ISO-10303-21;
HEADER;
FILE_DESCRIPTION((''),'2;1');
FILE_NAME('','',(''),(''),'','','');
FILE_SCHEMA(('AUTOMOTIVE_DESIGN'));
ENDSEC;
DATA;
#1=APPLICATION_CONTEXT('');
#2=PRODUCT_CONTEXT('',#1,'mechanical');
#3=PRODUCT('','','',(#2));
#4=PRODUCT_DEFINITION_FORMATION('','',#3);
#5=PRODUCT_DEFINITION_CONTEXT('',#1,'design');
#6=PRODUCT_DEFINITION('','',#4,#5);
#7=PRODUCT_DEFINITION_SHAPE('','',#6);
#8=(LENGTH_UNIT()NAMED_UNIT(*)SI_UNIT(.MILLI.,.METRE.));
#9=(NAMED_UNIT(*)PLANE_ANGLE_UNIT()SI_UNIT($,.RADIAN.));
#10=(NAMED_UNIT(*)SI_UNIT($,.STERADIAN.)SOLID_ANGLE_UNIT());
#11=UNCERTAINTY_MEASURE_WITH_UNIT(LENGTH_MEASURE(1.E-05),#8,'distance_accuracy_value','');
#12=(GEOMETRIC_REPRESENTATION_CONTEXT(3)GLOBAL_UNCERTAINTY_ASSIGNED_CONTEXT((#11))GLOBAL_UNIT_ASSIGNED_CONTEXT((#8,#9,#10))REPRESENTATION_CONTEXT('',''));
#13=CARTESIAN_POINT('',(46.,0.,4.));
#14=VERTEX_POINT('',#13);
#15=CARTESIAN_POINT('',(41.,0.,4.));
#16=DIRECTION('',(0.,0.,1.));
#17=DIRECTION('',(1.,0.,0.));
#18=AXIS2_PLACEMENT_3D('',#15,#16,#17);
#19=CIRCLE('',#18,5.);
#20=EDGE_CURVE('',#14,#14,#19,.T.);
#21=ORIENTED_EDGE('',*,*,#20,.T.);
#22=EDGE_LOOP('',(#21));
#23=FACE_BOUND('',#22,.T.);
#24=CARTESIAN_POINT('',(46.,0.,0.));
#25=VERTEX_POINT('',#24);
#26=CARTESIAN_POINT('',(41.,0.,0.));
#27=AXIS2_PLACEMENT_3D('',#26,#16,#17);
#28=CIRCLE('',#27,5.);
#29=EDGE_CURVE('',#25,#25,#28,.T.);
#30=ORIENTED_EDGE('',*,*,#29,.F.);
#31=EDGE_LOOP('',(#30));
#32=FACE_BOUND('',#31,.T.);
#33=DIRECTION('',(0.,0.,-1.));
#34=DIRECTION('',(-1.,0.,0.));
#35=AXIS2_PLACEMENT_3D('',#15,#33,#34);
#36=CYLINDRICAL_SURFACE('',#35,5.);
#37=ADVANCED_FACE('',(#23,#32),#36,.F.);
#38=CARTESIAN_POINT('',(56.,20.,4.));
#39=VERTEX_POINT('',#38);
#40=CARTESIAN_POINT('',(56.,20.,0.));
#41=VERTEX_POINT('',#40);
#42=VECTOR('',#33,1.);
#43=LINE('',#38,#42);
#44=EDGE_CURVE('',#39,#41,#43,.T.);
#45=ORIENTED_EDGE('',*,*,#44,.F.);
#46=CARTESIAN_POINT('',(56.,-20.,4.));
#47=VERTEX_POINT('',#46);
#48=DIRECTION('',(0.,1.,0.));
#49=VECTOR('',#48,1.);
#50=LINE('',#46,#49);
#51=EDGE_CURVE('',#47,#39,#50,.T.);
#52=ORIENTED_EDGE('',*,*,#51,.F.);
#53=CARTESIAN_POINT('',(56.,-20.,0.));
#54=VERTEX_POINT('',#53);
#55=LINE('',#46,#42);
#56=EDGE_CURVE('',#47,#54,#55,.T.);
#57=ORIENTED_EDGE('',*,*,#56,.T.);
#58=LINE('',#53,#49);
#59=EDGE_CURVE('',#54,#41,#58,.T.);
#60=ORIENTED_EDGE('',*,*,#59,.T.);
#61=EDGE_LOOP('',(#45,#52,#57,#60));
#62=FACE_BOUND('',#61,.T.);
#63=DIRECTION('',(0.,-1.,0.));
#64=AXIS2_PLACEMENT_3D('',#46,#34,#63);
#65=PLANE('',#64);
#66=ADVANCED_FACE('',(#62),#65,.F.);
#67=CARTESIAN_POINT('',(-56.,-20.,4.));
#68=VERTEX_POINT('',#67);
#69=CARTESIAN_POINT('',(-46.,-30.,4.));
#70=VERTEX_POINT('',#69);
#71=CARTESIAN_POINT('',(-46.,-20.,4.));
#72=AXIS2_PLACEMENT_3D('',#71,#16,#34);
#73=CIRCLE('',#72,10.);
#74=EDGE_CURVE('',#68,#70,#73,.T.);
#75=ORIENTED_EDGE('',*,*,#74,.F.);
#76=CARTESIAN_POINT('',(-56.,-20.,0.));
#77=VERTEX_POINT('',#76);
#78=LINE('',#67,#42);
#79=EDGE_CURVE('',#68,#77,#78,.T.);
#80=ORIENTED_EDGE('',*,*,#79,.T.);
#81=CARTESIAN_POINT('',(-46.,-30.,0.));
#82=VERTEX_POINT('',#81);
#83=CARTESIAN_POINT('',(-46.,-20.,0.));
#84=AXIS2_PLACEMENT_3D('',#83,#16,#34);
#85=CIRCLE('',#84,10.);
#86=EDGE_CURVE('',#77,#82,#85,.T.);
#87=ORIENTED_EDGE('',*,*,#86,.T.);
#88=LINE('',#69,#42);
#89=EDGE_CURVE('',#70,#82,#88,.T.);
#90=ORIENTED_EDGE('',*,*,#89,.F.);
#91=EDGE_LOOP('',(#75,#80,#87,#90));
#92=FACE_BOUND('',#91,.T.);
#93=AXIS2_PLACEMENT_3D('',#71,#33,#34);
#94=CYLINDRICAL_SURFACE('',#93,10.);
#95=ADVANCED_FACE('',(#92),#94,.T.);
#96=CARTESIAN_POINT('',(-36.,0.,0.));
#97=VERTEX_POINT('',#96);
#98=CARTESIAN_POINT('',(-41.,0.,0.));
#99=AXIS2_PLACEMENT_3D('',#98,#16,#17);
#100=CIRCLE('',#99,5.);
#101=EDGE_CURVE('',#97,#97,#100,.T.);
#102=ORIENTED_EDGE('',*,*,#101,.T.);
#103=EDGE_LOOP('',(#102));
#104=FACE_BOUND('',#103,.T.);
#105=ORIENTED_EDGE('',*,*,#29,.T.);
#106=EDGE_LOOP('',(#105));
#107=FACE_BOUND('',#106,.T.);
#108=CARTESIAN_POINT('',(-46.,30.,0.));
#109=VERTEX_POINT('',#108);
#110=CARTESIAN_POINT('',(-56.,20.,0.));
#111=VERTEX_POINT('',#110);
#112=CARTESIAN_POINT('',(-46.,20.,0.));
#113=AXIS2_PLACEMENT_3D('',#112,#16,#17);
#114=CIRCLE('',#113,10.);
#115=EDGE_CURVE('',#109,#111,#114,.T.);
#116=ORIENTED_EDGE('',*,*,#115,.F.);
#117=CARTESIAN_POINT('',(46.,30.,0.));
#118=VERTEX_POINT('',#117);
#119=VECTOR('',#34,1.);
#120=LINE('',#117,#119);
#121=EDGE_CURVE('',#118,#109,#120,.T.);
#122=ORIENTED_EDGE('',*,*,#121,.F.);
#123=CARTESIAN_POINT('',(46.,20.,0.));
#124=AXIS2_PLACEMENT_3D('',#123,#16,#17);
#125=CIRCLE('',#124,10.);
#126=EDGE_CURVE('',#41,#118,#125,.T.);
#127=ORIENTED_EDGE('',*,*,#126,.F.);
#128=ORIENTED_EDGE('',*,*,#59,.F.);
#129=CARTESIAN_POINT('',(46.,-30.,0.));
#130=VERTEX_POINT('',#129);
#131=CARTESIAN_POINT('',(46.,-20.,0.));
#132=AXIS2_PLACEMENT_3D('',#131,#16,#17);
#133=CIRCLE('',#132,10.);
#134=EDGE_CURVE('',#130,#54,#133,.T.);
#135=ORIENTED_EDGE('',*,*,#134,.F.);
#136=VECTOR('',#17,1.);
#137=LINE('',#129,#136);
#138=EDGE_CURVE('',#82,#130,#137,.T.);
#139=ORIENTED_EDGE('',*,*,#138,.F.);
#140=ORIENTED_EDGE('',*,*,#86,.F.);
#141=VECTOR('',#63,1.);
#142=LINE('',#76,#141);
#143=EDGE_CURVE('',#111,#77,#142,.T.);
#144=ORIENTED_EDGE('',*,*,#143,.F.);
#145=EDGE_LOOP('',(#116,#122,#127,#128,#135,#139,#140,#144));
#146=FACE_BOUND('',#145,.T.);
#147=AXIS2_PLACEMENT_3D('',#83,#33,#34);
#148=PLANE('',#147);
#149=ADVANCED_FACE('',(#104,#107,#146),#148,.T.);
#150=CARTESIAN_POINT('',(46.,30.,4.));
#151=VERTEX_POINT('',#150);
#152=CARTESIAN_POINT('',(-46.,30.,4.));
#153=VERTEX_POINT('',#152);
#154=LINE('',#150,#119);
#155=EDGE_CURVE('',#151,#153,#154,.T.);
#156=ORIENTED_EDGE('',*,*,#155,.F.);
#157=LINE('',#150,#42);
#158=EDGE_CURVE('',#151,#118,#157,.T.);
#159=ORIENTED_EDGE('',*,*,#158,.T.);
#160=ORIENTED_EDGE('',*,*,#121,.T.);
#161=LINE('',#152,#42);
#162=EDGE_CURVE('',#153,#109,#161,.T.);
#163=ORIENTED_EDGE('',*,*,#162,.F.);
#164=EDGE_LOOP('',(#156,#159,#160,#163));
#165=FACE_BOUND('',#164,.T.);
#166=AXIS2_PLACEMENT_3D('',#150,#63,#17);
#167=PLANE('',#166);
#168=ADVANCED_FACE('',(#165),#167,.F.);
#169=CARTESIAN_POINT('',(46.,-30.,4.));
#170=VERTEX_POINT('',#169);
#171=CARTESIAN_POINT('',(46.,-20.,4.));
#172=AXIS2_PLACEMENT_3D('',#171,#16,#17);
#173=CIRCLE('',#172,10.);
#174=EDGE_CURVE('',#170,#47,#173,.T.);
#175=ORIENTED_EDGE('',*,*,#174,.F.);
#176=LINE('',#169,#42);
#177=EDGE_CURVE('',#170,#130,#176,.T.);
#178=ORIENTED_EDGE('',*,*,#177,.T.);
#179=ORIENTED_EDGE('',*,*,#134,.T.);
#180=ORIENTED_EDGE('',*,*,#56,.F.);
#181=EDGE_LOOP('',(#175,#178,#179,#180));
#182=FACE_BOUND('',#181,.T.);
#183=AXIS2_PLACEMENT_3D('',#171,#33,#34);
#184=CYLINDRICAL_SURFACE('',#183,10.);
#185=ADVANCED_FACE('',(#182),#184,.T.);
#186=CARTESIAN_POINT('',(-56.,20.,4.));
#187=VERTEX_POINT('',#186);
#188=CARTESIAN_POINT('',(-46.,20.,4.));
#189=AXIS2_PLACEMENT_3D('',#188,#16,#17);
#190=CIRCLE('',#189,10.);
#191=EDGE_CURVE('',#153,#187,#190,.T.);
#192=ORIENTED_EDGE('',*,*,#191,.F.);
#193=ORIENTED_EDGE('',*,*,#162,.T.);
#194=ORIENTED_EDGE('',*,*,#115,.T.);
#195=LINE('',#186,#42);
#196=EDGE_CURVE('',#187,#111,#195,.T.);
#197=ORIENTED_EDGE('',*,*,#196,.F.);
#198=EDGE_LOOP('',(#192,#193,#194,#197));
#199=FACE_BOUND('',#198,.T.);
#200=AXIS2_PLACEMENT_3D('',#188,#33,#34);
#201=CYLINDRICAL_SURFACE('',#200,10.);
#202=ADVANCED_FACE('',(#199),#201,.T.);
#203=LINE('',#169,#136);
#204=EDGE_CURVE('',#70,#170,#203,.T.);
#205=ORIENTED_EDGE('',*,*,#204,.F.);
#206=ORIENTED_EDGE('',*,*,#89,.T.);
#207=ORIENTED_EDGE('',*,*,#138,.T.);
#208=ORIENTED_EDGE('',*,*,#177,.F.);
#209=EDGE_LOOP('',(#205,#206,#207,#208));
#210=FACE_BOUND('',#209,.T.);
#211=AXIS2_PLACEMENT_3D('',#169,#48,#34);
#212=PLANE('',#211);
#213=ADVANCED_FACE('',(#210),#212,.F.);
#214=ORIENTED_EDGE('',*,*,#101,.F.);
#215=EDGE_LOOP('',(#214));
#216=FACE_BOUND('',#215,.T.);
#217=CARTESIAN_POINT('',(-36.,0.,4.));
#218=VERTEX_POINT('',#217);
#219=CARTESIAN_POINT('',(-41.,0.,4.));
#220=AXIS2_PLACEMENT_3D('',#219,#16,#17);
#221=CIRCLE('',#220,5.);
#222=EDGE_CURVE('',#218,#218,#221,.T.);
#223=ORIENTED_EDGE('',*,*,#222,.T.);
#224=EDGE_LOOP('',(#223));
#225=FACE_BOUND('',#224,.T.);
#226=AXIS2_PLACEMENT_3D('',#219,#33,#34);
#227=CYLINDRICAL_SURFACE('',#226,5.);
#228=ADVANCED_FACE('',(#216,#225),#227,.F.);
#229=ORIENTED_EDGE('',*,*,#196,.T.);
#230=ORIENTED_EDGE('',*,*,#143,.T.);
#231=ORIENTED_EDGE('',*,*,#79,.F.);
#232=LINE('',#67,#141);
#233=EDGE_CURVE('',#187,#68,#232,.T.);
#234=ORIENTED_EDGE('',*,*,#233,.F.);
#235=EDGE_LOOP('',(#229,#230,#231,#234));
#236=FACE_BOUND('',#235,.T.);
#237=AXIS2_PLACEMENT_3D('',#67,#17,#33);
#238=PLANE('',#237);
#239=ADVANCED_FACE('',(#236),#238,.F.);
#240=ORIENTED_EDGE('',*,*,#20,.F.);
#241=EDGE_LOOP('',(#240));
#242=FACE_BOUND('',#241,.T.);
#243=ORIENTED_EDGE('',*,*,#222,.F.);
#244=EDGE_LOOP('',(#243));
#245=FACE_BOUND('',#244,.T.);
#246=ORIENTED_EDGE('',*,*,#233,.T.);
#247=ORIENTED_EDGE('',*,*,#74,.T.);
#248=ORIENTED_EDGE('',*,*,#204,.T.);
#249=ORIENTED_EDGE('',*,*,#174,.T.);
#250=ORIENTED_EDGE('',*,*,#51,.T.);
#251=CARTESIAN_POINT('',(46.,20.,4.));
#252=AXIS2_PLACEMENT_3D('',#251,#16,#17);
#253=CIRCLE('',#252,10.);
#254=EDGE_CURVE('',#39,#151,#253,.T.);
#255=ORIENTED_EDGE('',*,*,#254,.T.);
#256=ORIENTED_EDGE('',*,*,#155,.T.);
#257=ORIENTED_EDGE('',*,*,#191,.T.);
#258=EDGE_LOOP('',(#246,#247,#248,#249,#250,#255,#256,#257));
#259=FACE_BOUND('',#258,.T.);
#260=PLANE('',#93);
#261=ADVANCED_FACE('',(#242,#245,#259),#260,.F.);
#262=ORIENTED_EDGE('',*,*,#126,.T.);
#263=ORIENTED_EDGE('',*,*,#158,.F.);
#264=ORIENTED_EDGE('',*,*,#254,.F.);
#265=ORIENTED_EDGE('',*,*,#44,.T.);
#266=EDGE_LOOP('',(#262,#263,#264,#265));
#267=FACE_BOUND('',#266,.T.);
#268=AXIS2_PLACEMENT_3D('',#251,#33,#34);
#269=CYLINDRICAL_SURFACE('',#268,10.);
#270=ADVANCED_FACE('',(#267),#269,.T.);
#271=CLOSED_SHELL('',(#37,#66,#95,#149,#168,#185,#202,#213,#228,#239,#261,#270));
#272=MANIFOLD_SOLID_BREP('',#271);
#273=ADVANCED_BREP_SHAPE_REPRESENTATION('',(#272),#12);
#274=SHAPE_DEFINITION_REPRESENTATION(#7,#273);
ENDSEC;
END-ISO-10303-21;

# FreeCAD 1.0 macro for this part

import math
import FreeCAD as App
import Part
import Sketcher

V = App.Vector

doc = App.newDocument("Part")
params = doc.addObject("Spreadsheet::Sheet", "Params")
for row, (alias, value) in enumerate([
    ("sketch1_diameter", "10 mm"),
    ("sketch1_radius", "10 mm"),
    ("sketch1_width", "92 mm"),
    ("sketch1_height", "40 mm"),
    ("pad1_length", "4 mm"),
], start=1):
    params.set(f"A{row}", alias)
    params.set(f"B{row}", "=" + value)
    params.setAlias(f"B{row}", alias)

body = doc.addObject("PartDesign::Body", "Body")

# Sketch on XY plane
sketch1 = body.newObject("Sketcher::SketchObject", "Sketch")
sketch1.AttachmentSupport = (doc.getObject("XY_Plane"), [""])
sketch1.MapMode = "FlatFace"
sketch1.addGeometry([
    Part.LineSegment(V(-46, -30, 0), V(46, -30, 0)),  # 0
    Part.ArcOfCircle(Part.Circle(V(46, -20, 0), V(0, 0, 1), 10), math.radians(-90), math.radians(0)),  # 1
    Part.LineSegment(V(56, -20, 0), V(56, 20, 0)),  # 2
    Part.ArcOfCircle(Part.Circle(V(46, 20, 0), V(0, 0, 1), 10), math.radians(0), math.radians(90)),  # 3
    Part.LineSegment(V(46, 30, 0), V(-46, 30, 0)),  # 4
    Part.ArcOfCircle(Part.Circle(V(-46, 20, 0), V(0, 0, 1), 10), math.radians(90), math.radians(180)),  # 5
    Part.LineSegment(V(-56, 20, 0), V(-56, -20, 0)),  # 6
    Part.ArcOfCircle(Part.Circle(V(-46, -20, 0), V(0, 0, 1), 10), math.radians(180), math.radians(270)),  # 7
    Part.Circle(V(41, 0, 0), V(0, 0, 1), 5),  # 8
    Part.Circle(V(-41, 0, 0), V(0, 0, 1), 5),  # 9
], False)
sketch1.addConstraint([
    Sketcher.Constraint("Tangent", 0, 2, 1, 1),
    Sketcher.Constraint("Tangent", 1, 2, 2, 1),
    Sketcher.Constraint("Tangent", 2, 2, 3, 1),
    Sketcher.Constraint("Tangent", 3, 2, 4, 1),
    Sketcher.Constraint("Tangent", 4, 2, 5, 1),
    Sketcher.Constraint("Tangent", 5, 2, 6, 1),
    Sketcher.Constraint("Tangent", 6, 2, 7, 1),
    Sketcher.Constraint("Tangent", 7, 2, 0, 1),
    Sketcher.Constraint("Horizontal", 0),
    Sketcher.Constraint("Vertical", 2),
    Sketcher.Constraint("Horizontal", 4),
    Sketcher.Constraint("Vertical", 6),
    Sketcher.Constraint("Equal", 1, 3),
    Sketcher.Constraint("Equal", 3, 5),
    Sketcher.Constraint("Equal", 5, 7),
    Sketcher.Constraint("Equal", 8, 9),
    Sketcher.Constraint("Symmetric", 1, 3, 5, 3, -1, 1),
    Sketcher.Constraint("Symmetric", 8, 3, 9, 3, -1, 1),
    Sketcher.Constraint("PointOnObject", 8, 3, -1),
    Sketcher.Constraint("Diameter", 8, 10.0),
    Sketcher.Constraint("Radius", 1, 10.0),
    Sketcher.Constraint("DistanceX", 0, 1, 0, 2, 92.0),
    Sketcher.Constraint("DistanceY", 2, 1, 2, 2, 40.0),
    Sketcher.Constraint("DistanceX", -1, 1, 8, 3, 41.0),
])
sketch1.setExpression("Constraints[19]", "Params.sketch1_diameter")
sketch1.setExpression("Constraints[20]", "Params.sketch1_radius")
sketch1.setExpression("Constraints[21]", "Params.sketch1_width")
sketch1.setExpression("Constraints[22]", "Params.sketch1_height")
pad1 = body.newObject("PartDesign::Pad", "Pad")
pad1.Profile = sketch1
pad1.setExpression("Length", "Params.pad1_length")

doc.recompute()
